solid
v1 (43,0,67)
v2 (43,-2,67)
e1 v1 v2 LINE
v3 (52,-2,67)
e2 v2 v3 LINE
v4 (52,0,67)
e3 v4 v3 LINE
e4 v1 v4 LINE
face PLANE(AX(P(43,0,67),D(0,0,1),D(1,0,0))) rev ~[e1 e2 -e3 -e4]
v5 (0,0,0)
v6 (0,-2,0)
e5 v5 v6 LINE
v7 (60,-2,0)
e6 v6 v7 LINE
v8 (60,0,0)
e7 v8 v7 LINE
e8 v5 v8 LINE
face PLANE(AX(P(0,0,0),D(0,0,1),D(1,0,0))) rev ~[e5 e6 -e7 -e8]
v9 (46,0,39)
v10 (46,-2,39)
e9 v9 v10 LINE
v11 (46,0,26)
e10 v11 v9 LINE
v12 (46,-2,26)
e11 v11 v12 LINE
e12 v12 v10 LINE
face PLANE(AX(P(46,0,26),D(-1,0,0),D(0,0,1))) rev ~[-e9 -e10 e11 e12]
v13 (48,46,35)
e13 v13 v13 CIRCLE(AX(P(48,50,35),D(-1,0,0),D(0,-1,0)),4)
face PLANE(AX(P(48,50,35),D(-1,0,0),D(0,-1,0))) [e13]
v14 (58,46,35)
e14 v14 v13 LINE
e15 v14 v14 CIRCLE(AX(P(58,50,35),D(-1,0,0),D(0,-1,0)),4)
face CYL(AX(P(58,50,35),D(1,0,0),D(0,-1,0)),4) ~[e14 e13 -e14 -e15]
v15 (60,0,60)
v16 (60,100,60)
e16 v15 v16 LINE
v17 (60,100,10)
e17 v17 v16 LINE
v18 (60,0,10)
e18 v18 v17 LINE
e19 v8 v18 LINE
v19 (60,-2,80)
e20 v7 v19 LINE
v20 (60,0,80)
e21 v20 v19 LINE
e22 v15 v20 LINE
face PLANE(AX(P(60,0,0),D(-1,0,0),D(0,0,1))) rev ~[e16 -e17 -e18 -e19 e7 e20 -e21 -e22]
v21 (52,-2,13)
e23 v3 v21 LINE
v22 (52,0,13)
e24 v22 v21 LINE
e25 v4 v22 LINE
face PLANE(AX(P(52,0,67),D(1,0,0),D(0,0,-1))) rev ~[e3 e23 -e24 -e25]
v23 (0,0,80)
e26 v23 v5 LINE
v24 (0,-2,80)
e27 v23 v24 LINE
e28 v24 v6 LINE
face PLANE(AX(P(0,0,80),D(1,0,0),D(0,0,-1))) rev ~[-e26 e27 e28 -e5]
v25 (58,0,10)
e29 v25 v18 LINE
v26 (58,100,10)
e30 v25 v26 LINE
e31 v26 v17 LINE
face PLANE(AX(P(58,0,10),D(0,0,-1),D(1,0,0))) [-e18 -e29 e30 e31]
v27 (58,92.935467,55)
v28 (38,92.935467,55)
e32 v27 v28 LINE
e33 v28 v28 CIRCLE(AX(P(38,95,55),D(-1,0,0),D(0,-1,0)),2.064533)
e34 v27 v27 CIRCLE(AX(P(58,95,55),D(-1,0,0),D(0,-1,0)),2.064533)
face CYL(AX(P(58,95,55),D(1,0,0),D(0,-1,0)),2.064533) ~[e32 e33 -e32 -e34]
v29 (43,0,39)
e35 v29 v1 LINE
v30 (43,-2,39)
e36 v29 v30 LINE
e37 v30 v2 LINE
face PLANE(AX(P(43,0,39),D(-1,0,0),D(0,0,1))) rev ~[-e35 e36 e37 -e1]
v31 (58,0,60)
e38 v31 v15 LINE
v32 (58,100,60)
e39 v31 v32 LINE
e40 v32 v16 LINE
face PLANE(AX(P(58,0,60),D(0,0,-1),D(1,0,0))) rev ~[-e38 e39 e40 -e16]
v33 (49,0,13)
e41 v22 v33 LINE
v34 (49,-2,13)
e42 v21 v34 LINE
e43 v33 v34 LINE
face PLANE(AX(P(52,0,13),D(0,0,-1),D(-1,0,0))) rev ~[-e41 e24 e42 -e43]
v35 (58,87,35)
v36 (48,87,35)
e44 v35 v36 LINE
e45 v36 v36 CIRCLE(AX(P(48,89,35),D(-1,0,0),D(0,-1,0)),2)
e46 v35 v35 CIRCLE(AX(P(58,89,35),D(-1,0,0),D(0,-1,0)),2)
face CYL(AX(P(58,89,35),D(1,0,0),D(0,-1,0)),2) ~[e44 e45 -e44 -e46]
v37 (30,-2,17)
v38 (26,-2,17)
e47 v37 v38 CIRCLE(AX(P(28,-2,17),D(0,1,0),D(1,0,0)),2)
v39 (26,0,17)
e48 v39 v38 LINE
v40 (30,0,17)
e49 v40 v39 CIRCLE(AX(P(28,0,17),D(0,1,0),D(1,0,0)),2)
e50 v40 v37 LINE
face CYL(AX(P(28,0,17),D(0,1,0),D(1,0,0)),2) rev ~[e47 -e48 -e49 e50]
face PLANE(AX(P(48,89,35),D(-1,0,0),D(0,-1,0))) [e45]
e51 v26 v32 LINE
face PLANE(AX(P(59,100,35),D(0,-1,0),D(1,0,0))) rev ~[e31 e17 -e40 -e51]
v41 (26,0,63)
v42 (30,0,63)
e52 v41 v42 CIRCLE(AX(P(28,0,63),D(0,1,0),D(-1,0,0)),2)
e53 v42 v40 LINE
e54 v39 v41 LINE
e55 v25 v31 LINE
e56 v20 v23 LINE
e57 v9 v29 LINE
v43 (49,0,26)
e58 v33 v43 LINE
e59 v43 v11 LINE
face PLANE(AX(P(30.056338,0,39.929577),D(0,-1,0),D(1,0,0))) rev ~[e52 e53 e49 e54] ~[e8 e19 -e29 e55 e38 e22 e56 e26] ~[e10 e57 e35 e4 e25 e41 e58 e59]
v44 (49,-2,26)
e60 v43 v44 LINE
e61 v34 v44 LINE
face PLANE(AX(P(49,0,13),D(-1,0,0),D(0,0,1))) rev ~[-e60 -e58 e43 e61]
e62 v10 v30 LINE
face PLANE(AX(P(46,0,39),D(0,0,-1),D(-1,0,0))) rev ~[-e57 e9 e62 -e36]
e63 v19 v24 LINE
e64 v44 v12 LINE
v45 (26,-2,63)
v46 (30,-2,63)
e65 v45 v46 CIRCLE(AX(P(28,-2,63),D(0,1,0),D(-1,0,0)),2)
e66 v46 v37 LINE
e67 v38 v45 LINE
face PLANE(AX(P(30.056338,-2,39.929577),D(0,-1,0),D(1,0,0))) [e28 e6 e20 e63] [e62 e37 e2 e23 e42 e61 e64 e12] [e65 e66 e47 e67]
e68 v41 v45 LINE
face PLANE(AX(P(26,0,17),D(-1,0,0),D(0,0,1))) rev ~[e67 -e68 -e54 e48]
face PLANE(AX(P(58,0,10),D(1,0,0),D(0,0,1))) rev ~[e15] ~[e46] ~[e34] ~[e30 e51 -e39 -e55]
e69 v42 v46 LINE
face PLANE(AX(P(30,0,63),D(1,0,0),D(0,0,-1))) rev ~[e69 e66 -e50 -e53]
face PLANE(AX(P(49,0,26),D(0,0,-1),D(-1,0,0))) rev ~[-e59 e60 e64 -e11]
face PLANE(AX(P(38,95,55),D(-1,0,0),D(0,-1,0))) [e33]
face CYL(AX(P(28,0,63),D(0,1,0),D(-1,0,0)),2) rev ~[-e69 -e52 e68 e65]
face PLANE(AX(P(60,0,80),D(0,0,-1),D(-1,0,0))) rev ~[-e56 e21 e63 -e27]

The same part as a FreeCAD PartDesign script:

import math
import FreeCAD as App
import Part
import Sketcher

V = App.Vector


def add_polygon(sketch, points):
    """Adds a closed chain of lines whose ends are joined by coincident constraints."""
    first, n = sketch.GeometryCount, len(points)
    for a, b in zip(points, points[1:] + points[:1]):
        sketch.addGeometry(Part.LineSegment(App.Vector(*a, 0), App.Vector(*b, 0)), False)
    for i in range(n):
        sketch.addConstraint(Sketcher.Constraint("Coincident", first + i, 2, first + (i + 1) % n, 1))

doc = App.newDocument("Part")
body = doc.addObject("PartDesign::Body", "Body")

# Sketch on XZ plane
sketch1 = doc.addObject("Sketcher::SketchObject", "Sketch")
body.addObject(sketch1)
sketch1.AttachmentSupport = (doc.XZ_Plane, [""])
sketch1.MapMode = "FlatFace"
add_polygon(sketch1, [(0, 80), (0, 0), (60, 0), (60, 80)])  # lines 0-3
sketch1.addGeometry(Part.ArcOfCircle(Part.Circle(V(28, 17, 0), V(0, 0, 1), 2), math.radians(180), math.radians(360)), False)  # 4
sketch1.addGeometry(Part.LineSegment(V(26, 17, 0), V(26, 63, 0)), False)  # 5
sketch1.addGeometry(Part.ArcOfCircle(Part.Circle(V(28, 63, 0), V(0, 0, 1), 2), math.radians(0), math.radians(180)), False)  # 6
sketch1.addGeometry(Part.LineSegment(V(30, 63, 0), V(30, 17, 0)), False)  # 7
add_polygon(sketch1, [(43, 39), (43, 67), (52, 67), (52, 13), (49, 13), (49, 26), (46, 26), (46, 39)])  # lines 8-15
sketch1.addConstraint(Sketcher.Constraint("Tangent", 4, 1, 5, 1))
sketch1.addConstraint(Sketcher.Constraint("Tangent", 5, 2, 6, 2))
sketch1.addConstraint(Sketcher.Constraint("Tangent", 6, 1, 7, 1))
sketch1.addConstraint(Sketcher.Constraint("Tangent", 7, 2, 4, 2))
sketch1.addConstraint(Sketcher.Constraint("Vertical", 0))
sketch1.addConstraint(Sketcher.Constraint("Horizontal", 1))
sketch1.addConstraint(Sketcher.Constraint("Vertical", 2))
sketch1.addConstraint(Sketcher.Constraint("Horizontal", 3))
sketch1.addConstraint(Sketcher.Constraint("Vertical", 5))
sketch1.addConstraint(Sketcher.Constraint("Vertical", 7))
sketch1.addConstraint(Sketcher.Constraint("Vertical", 8))
sketch1.addConstraint(Sketcher.Constraint("Horizontal", 9))
sketch1.addConstraint(Sketcher.Constraint("Vertical", 10))
sketch1.addConstraint(Sketcher.Constraint("Horizontal", 11))
sketch1.addConstraint(Sketcher.Constraint("Vertical", 12))
sketch1.addConstraint(Sketcher.Constraint("Horizontal", 13))
sketch1.addConstraint(Sketcher.Constraint("Vertical", 14))
sketch1.addConstraint(Sketcher.Constraint("Horizontal", 15))
sketch1.addConstraint(Sketcher.Constraint("Coincident", 0, 2, -1, 1))
sketch1.addConstraint(Sketcher.Constraint("Equal", 11, 13))
sketch1.addConstraint(Sketcher.Constraint("Equal", 13, 15))
sketch1.addConstraint(Sketcher.Constraint("Equal", 12, 14))
sketch1.addConstraint(Sketcher.Constraint("Radius", 4, 2.0))
sketch1.addConstraint(Sketcher.Constraint("DistanceX", 1, 1, 1, 2, 60.0))
sketch1.addConstraint(Sketcher.Constraint("DistanceX", 9, 1, 9, 2, 9.0))
sketch1.addConstraint(Sketcher.Constraint("DistanceY", 0, 2, 0, 1, 80.0))
sketch1.addConstraint(Sketcher.Constraint("DistanceY", 5, 1, 5, 2, 46.0))
sketch1.addConstraint(Sketcher.Constraint("DistanceY", 8, 1, 8, 2, 28.0))
sketch1.addConstraint(Sketcher.Constraint("DistanceY", 10, 2, 10, 1, 54.0))
sketch1.addConstraint(Sketcher.Constraint("DistanceX", -1, 1, 4, 3, 28.0))
sketch1.addConstraint(Sketcher.Constraint("DistanceY", -1, 1, 4, 3, 17.0))
sketch1.addConstraint(Sketcher.Constraint("DistanceX", -1, 1, 8, 2, 43.0))
sketch1.addConstraint(Sketcher.Constraint("DistanceY", -1, 1, 8, 2, 67.0))
pad1 = doc.addObject("PartDesign::Pad", "Pad")
body.addObject(pad1)
pad1.Profile = sketch1
pad1.Length = 2

# Sketch on XZ plane
sketch2 = doc.addObject("Sketcher::SketchObject", "Sketch001")
body.addObject(sketch2)
sketch2.AttachmentSupport = (doc.XZ_Plane, [""])
sketch2.MapMode = "FlatFace"
add_polygon(sketch2, [(58, 60), (58, 10), (60, 10), (60, 60)])  # lines 0-3
sketch2.addConstraint(Sketcher.Constraint("Vertical", 0))
sketch2.addConstraint(Sketcher.Constraint("Horizontal", 1))
sketch2.addConstraint(Sketcher.Constraint("Vertical", 2))
sketch2.addConstraint(Sketcher.Constraint("Horizontal", 3))
sketch2.addConstraint(Sketcher.Constraint("DistanceX", 1, 1, 1, 2, 2.0))
sketch2.addConstraint(Sketcher.Constraint("DistanceY", 0, 2, 0, 1, 50.0))
sketch2.addConstraint(Sketcher.Constraint("DistanceX", -1, 1, 0, 2, 58.0))
sketch2.addConstraint(Sketcher.Constraint("DistanceY", -1, 1, 0, 2, 10.0))
pad2 = doc.addObject("PartDesign::Pad", "Pad001")
body.addObject(pad2)
pad2.Profile = sketch2
pad2.Length = 100
pad2.Reversed = True

# Sketch on YZ plane
sketch3 = doc.addObject("Sketcher::SketchObject", "Sketch002")
body.addObject(sketch3)
sketch3.AttachmentSupport = (doc.YZ_Plane, [""])
sketch3.MapMode = "FlatFace"
sketch3.AttachmentOffset = App.Placement(V(0, 0, 58), App.Rotation())
sketch3.addGeometry(Part.Circle(V(50, 35, 0), V(0, 0, 1), 4), False)
sketch3.addGeometry(Part.Circle(V(89, 35, 0), V(0, 0, 1), 2), False)
sketch3.addConstraint(Sketcher.Constraint("Horizontal", 0, 3, 1, 3))
sketch3.addConstraint(Sketcher.Constraint("Diameter", 0, 8.0))
sketch3.addConstraint(Sketcher.Constraint("Diameter", 1, 4.0))
sketch3.addConstraint(Sketcher.Constraint("DistanceX", -1, 1, 0, 3, 50.0))
sketch3.addConstraint(Sketcher.Constraint("DistanceY", -1, 1, 0, 3, 35.0))
sketch3.addConstraint(Sketcher.Constraint("DistanceX", -1, 1, 1, 3, 89.0))
pad3 = doc.addObject("PartDesign::Pad", "Pad002")
body.addObject(pad3)
pad3.Profile = sketch3
pad3.Length = 10
pad3.Reversed = True

# Sketch on YZ plane
sketch4 = doc.addObject("Sketcher::SketchObject", "Sketch003")
body.addObject(sketch4)
sketch4.AttachmentSupport = (doc.YZ_Plane, [""])
sketch4.MapMode = "FlatFace"
sketch4.AttachmentOffset = App.Placement(V(0, 0, 58), App.Rotation())
sketch4.addGeometry(Part.Circle(V(95, 55, 0), V(0, 0, 1), 2.1), False)
sketch4.addConstraint(Sketcher.Constraint("DistanceX", -1, 1, 0, 3, 95.0))
sketch4.addConstraint(Sketcher.Constraint("DistanceY", -1, 1, 0, 3, 55.0))
sketch4.addConstraint(Sketcher.Constraint("Diameter", 0, 4.129066))
pad4 = doc.addObject("PartDesign::Pad", "Pad003")
body.addObject(pad4)
pad4.Profile = sketch4
pad4.Length = 20
pad4.Reversed = True

doc.recompute()
